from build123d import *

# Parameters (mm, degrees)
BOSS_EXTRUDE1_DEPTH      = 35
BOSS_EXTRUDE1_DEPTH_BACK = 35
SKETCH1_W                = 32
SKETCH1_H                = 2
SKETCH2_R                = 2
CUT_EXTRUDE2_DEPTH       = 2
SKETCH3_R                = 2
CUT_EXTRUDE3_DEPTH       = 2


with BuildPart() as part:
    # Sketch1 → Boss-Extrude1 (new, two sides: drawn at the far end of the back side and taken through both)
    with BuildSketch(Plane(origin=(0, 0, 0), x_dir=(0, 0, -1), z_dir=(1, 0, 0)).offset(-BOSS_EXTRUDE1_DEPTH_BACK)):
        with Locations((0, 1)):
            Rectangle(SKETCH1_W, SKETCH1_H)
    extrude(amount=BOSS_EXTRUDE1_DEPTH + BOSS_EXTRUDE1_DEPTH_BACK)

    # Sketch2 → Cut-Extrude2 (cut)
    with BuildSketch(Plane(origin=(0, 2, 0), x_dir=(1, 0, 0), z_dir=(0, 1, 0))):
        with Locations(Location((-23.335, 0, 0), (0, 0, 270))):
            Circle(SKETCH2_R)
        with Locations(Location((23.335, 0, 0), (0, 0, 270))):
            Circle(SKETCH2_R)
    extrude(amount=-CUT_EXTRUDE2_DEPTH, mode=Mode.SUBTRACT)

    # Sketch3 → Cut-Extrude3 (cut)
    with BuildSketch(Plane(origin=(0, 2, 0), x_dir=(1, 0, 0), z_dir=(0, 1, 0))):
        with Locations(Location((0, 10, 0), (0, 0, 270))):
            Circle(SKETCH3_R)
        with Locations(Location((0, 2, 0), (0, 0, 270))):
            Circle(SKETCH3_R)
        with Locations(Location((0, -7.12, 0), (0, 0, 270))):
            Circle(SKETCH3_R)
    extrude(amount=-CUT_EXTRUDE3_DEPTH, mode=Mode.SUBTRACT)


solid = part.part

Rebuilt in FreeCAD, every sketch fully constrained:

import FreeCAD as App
import Part
import Sketcher

V = App.Vector
Q = App.Units.Quantity


def add_polygon(sketch, points):
    """Adds a closed chain of lines whose ends are joined by coincident constraints."""
    first, n = sketch.GeometryCount, len(points)
    for a, b in zip(points, points[1:] + points[:1]):
        sketch.addGeometry(Part.LineSegment(App.Vector(*a, 0), App.Vector(*b, 0)), False)
    for i in range(n):
        sketch.addConstraint(Sketcher.Constraint("Coincident", first + i, 2, first + (i + 1) % n, 1))

doc = App.newDocument("Part")
params = doc.addObject("Spreadsheet::Sheet", "Params")
for row, (alias, value) in enumerate([
    ("sketch1_width", "2 mm"),
    ("sketch1_height", "32 mm"),
    ("pad1_length", "35 mm"),
    ("pad1_length2", "35 mm"),
    ("sketch2_diameter", "4 mm"),
    ("pocket1_length", "2 mm"),
    ("sketch3_diameter", "4 mm"),
    ("pocket2_length", "2 mm"),
], start=1):
    params.set(f"A{row}", alias)
    params.set(f"B{row}", "=" + value)
    params.setAlias(f"B{row}", alias)

body = doc.addObject("PartDesign::Body", "Body")

# Sketch on YZ plane
sketch1 = doc.addObject("Sketcher::SketchObject", "Sketch")
body.addObject(sketch1)
sketch1.AttachmentSupport = (doc.YZ_Plane, [""])
sketch1.MapMode = "FlatFace"
add_polygon(sketch1, [(2, 16), (0, 16), (0, -16), (2, -16)])  # lines 0-3
sketch1.addConstraint([
    Sketcher.Constraint("Horizontal", 0),
    Sketcher.Constraint("Vertical", 1),
    Sketcher.Constraint("Horizontal", 2),
    Sketcher.Constraint("Vertical", 3),
    Sketcher.Constraint("Symmetric", 0, 2, 1, 2, -1, 1),
    Sketcher.Constraint("DistanceX", 0, 2, 0, 1, Q("2 mm")),
    Sketcher.Constraint("DistanceY", 1, 2, 1, 1, Q("32 mm")),
])
sketch1.setExpression("Constraints[9]", "Params.sketch1_width")
sketch1.setExpression("Constraints[10]", "Params.sketch1_height")
pad1 = doc.addObject("PartDesign::Pad", "Pad")
body.addObject(pad1)
pad1.Profile = sketch1
pad1.Type = "TwoLengths"
pad1.setExpression("Length", "Params.pad1_length")
pad1.setExpression("Length2", "Params.pad1_length2")

# Sketch on XZ plane
sketch2 = doc.addObject("Sketcher::SketchObject", "Sketch001")
body.addObject(sketch2)
sketch2.AttachmentSupport = (doc.XZ_Plane, [""])
sketch2.MapMode = "FlatFace"
sketch2.AttachmentOffset = App.Placement(V(0, 0, -2), App.Rotation())
sketch2.addGeometry([
    Part.Circle(V(-23.335, 0, 0), V(0, 0, 1), 2),
    Part.Circle(V(23.335, 0, 0), V(0, 0, 1), 2),
], False)
sketch2.addConstraint([
    Sketcher.Constraint("Equal", 0, 1),
    Sketcher.Constraint("Symmetric", 0, 3, 1, 3, -1, 1),
    Sketcher.Constraint("PointOnObject", 0, 3, -1),
    Sketcher.Constraint("Diameter", 0, Q("4 mm")),
    Sketcher.Constraint("DistanceX", 0, 3, 1, 3, Q("46.67 mm")),
])
sketch2.setExpression("Constraints[3]", "Params.sketch2_diameter")
pocket1 = doc.addObject("PartDesign::Pocket", "Pocket")
body.addObject(pocket1)
pocket1.Profile = sketch2
pocket1.setExpression("Length", "Params.pocket1_length")
pocket1.Reversed = True

# Sketch on XZ plane
sketch3 = doc.addObject("Sketcher::SketchObject", "Sketch002")
body.addObject(sketch3)
sketch3.AttachmentSupport = (doc.XZ_Plane, [""])
sketch3.MapMode = "FlatFace"
sketch3.AttachmentOffset = App.Placement(V(0, 0, -2), App.Rotation())
sketch3.addGeometry([
    Part.Circle(V(0, -10, 0), V(0, 0, 1), 2),
    Part.Circle(V(0, -2, 0), V(0, 0, 1), 2),
    Part.Circle(V(0, 7.12, 0), V(0, 0, 1), 2),
], False)
sketch3.addConstraint([
    Sketcher.Constraint("Equal", 0, 1),
    Sketcher.Constraint("Equal", 1, 2),
    Sketcher.Constraint("PointOnObject", 0, 3, -2),
    Sketcher.Constraint("PointOnObject", 1, 3, -2),
    Sketcher.Constraint("PointOnObject", 2, 3, -2),
    Sketcher.Constraint("Diameter", 0, Q("4 mm")),
    Sketcher.Constraint("DistanceY", 0, 3, -1, 1, Q("10 mm")),
    Sketcher.Constraint("DistanceY", 1, 3, -1, 1, Q("2 mm")),
    Sketcher.Constraint("DistanceY", -1, 1, 2, 3, Q("7.12 mm")),
])
sketch3.setExpression("Constraints[5]", "Params.sketch3_diameter")
pocket2 = doc.addObject("PartDesign::Pocket", "Pocket001")
body.addObject(pocket2)
pocket2.Profile = sketch3
pocket2.setExpression("Length", "Params.pocket2_length")
pocket2.Reversed = True

doc.recompute()
